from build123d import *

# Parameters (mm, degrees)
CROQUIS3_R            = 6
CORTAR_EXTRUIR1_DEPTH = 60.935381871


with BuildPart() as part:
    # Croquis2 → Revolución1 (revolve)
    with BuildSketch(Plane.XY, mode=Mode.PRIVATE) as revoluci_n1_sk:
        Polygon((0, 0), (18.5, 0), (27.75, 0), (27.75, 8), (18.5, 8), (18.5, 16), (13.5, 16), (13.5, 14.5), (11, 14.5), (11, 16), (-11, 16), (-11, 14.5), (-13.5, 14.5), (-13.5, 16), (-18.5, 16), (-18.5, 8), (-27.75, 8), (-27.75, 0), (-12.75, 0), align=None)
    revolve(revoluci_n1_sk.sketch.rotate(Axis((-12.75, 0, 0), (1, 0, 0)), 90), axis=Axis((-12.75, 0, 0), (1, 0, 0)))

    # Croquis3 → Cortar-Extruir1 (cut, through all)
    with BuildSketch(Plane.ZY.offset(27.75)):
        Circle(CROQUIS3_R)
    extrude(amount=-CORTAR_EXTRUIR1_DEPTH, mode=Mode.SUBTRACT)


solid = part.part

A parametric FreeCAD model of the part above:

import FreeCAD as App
import Part
import Sketcher

V = App.Vector


def add_polygon(sketch, points):
    """Adds a closed chain of lines whose ends are joined by coincident constraints."""
    first, n = sketch.GeometryCount, len(points)
    for a, b in zip(points, points[1:] + points[:1]):
        sketch.addGeometry(Part.LineSegment(App.Vector(*a, 0), App.Vector(*b, 0)), False)
    for i in range(n):
        sketch.addConstraint(Sketcher.Constraint("Coincident", first + i, 2, first + (i + 1) % n, 1))

doc = App.newDocument("Part")
body = doc.addObject("PartDesign::Body", "Body")

# Sketch on XY plane
sketch1 = body.newObject("Sketcher::SketchObject", "Sketch")
sketch1.AttachmentSupport = (doc.getObject("XY_Plane"), [""])
sketch1.MapMode = "FlatFace"
add_polygon(sketch1, [(27.8, 0), (27.8, 8), (18.5, 8), (18.5, 16), (13.5, 16), (13.5, 14.5), (11, 14.5), (11, 16), (-11, 16), (-11, 14.5), (-13.5, 14.5), (-13.5, 16), (-18.5, 16), (-18.5, 8), (-27.8, 8), (-27.8, 0)])  # lines 0-15
sketch1.addConstraint(Sketcher.Constraint("Vertical", 0))
sketch1.addConstraint(Sketcher.Constraint("Horizontal", 1))
sketch1.addConstraint(Sketcher.Constraint("Vertical", 2))
sketch1.addConstraint(Sketcher.Constraint("Horizontal", 3))
sketch1.addConstraint(Sketcher.Constraint("Vertical", 4))
sketch1.addConstraint(Sketcher.Constraint("Horizontal", 5))
sketch1.addConstraint(Sketcher.Constraint("Vertical", 6))
sketch1.addConstraint(Sketcher.Constraint("Horizontal", 7))
sketch1.addConstraint(Sketcher.Constraint("Vertical", 8))
sketch1.addConstraint(Sketcher.Constraint("Horizontal", 9))
sketch1.addConstraint(Sketcher.Constraint("Vertical", 10))
sketch1.addConstraint(Sketcher.Constraint("Horizontal", 11))
sketch1.addConstraint(Sketcher.Constraint("Vertical", 12))
sketch1.addConstraint(Sketcher.Constraint("Horizontal", 13))
sketch1.addConstraint(Sketcher.Constraint("Vertical", 14))
sketch1.addConstraint(Sketcher.Constraint("Horizontal", 15))
sketch1.addConstraint(Sketcher.Constraint("Symmetric", 14, 2, 15, 2, -1, 1))
sketch1.addConstraint(Sketcher.Constraint("Symmetric", 5, 2, 8, 2, -2))
sketch1.addConstraint(Sketcher.Constraint("Symmetric", 3, 2, 10, 2, -2))
sketch1.addConstraint(Sketcher.Constraint("Symmetric", 1, 2, 12, 2, -2))
sketch1.addConstraint(Sketcher.Constraint("Horizontal", 3, 2, 6, 2))
sketch1.addConstraint(Sketcher.Constraint("Equal", 0, 2))
sketch1.addConstraint(Sketcher.Constraint("DistanceX", 3, 2, 3, 1, 5.0))
sketch1.addConstraint(Sketcher.Constraint("DistanceX", 7, 2, 7, 1, 22.0))
sketch1.addConstraint(Sketcher.Constraint("DistanceY", 0, 1, 0, 2, 8.0))
sketch1.addConstraint(Sketcher.Constraint("DistanceX", 5, 2, 5, 1, 2.5))
sketch1.addConstraint(Sketcher.Constraint("DistanceX", 15, 1, 15, 2, 55.5))
sketch1.addConstraint(Sketcher.Constraint("DistanceY", 4, 2, 4, 1, 1.5))
revolution = body.newObject("PartDesign::Revolution", "Revolution")
revolution.Profile = sketch1
revolution.ReferenceAxis = (sketch1, ["H_Axis"])
revolution.Angle = 360

# Sketch on YZ plane
sketch2 = body.newObject("Sketcher::SketchObject", "Sketch001")
sketch2.AttachmentSupport = (doc.getObject("YZ_Plane"), [""])
sketch2.MapMode = "FlatFace"
sketch2.AttachmentOffset = App.Placement(V(0, 0, -27.75), App.Rotation())
sketch2.addGeometry(Part.Circle(V(0, 0, 0), V(0, 0, 1), 6), False)
sketch2.addConstraint(Sketcher.Constraint("Coincident", 0, 3, -1, 1))
sketch2.addConstraint(Sketcher.Constraint("Diameter", 0, 12.0))
pocket1 = body.newObject("PartDesign::Pocket", "Pocket")
pocket1.Profile = sketch2
pocket1.Type = "ThroughAll"
pocket1.Reversed = True

doc.recompute()
